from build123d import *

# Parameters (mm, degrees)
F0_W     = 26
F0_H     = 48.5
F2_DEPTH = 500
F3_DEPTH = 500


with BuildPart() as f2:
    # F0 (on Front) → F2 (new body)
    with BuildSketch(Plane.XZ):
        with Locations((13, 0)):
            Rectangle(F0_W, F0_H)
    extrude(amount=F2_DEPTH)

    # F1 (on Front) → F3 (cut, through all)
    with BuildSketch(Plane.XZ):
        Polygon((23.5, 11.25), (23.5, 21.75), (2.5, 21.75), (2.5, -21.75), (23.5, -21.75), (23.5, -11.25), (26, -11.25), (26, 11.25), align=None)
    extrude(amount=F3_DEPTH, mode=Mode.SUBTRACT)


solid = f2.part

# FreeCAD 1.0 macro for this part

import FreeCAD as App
import Part
import Sketcher

doc = App.newDocument("Part")
body = doc.addObject("PartDesign::Body", "Body")

# Sketch on XZ plane
sketch1 = doc.addObject("Sketcher::SketchObject", "Sketch")
body.addObject(sketch1)
sketch1.AttachmentSupport = (doc.XZ_Plane, [""])
sketch1.MapMode = "FlatFace"
sketch1.addGeometry([
    Part.LineSegment(App.Vector(0, 24, 0), App.Vector(0, -24, 0)),
    Part.LineSegment(App.Vector(0, -24, 0), App.Vector(26, -24, 0)),
    Part.LineSegment(App.Vector(26, -24, 0), App.Vector(26, 24, 0)),
    Part.LineSegment(App.Vector(26, 24, 0), App.Vector(0, 24, 0)),
], False)
sketch1.addConstraint([
    Sketcher.Constraint("Coincident", 0, 2, 1, 1),
    Sketcher.Constraint("Coincident", 1, 2, 2, 1),
    Sketcher.Constraint("Coincident", 2, 2, 3, 1),
    Sketcher.Constraint("Coincident", 3, 2, 0, 1),
    Sketcher.Constraint("Vertical", 0),
    Sketcher.Constraint("Horizontal", 1),
    Sketcher.Constraint("Vertical", 2),
    Sketcher.Constraint("Horizontal", 3),
    Sketcher.Constraint("Symmetric", 0, 2, 3, 2, -1, 1),
    Sketcher.Constraint("DistanceX", 1, 1, 1, 2, 26.0),
    Sketcher.Constraint("DistanceY", 0, 2, 0, 1, 48.5),
])
pad1 = doc.addObject("PartDesign::Pad", "Pad")
body.addObject(pad1)
pad1.Profile = sketch1
pad1.Length = 500

# Sketch on XZ plane
sketch2 = doc.addObject("Sketcher::SketchObject", "Sketch001")
body.addObject(sketch2)
sketch2.AttachmentSupport = (doc.XZ_Plane, [""])
sketch2.MapMode = "FlatFace"
sketch2.addGeometry([
    Part.LineSegment(App.Vector(23.5, 11.2, 0), App.Vector(23.5, 21.8, 0)),  # 0
    Part.LineSegment(App.Vector(23.5, 21.8, 0), App.Vector(2.5, 21.8, 0)),  # 1
    Part.LineSegment(App.Vector(2.5, 21.8, 0), App.Vector(2.5, -21.8, 0)),  # 2
    Part.LineSegment(App.Vector(2.5, -21.8, 0), App.Vector(23.5, -21.8, 0)),  # 3
    Part.LineSegment(App.Vector(23.5, -21.8, 0), App.Vector(23.5, -11.2, 0)),  # 4
    Part.LineSegment(App.Vector(23.5, -11.2, 0), App.Vector(26, -11.2, 0)),  # 5
    Part.LineSegment(App.Vector(26, -11.2, 0), App.Vector(26, 11.2, 0)),  # 6
    Part.LineSegment(App.Vector(26, 11.2, 0), App.Vector(23.5, 11.2, 0)),  # 7
], False)
sketch2.addConstraint([
    Sketcher.Constraint("Coincident", 0, 2, 1, 1),
    Sketcher.Constraint("Coincident", 1, 2, 2, 1),
    Sketcher.Constraint("Coincident", 2, 2, 3, 1),
    Sketcher.Constraint("Coincident", 3, 2, 4, 1),
    Sketcher.Constraint("Coincident", 4, 2, 5, 1),
    Sketcher.Constraint("Coincident", 5, 2, 6, 1),
    Sketcher.Constraint("Coincident", 6, 2, 7, 1),
    Sketcher.Constraint("Coincident", 7, 2, 0, 1),
    Sketcher.Constraint("Vertical", 0),
    Sketcher.Constraint("Horizontal", 1),
    Sketcher.Constraint("Vertical", 2),
    Sketcher.Constraint("Horizontal", 3),
    Sketcher.Constraint("Vertical", 4),
    Sketcher.Constraint("Horizontal", 5),
    Sketcher.Constraint("Vertical", 6),
    Sketcher.Constraint("Horizontal", 7),
    Sketcher.Constraint("Symmetric", 0, 2, 3, 2, -1),
    Sketcher.Constraint("Equal", 0, 4),
    Sketcher.Constraint("DistanceX", 1, 2, 1, 1, 21.0),
    Sketcher.Constraint("DistanceX", 5, 1, 5, 2, 2.5),
    Sketcher.Constraint("DistanceY", 0, 1, 0, 2, 10.5),
    Sketcher.Constraint("DistanceY", 2, 2, 2, 1, 43.5),
    Sketcher.Constraint("DistanceX", -1, 1, 5, 2, 26.0),
])
pocket1 = doc.addObject("PartDesign::Pocket", "Pocket")
body.addObject(pocket1)
pocket1.Profile = sketch2
pocket1.Type = "ThroughAll"
pocket1.Reversed = True

doc.recompute()
